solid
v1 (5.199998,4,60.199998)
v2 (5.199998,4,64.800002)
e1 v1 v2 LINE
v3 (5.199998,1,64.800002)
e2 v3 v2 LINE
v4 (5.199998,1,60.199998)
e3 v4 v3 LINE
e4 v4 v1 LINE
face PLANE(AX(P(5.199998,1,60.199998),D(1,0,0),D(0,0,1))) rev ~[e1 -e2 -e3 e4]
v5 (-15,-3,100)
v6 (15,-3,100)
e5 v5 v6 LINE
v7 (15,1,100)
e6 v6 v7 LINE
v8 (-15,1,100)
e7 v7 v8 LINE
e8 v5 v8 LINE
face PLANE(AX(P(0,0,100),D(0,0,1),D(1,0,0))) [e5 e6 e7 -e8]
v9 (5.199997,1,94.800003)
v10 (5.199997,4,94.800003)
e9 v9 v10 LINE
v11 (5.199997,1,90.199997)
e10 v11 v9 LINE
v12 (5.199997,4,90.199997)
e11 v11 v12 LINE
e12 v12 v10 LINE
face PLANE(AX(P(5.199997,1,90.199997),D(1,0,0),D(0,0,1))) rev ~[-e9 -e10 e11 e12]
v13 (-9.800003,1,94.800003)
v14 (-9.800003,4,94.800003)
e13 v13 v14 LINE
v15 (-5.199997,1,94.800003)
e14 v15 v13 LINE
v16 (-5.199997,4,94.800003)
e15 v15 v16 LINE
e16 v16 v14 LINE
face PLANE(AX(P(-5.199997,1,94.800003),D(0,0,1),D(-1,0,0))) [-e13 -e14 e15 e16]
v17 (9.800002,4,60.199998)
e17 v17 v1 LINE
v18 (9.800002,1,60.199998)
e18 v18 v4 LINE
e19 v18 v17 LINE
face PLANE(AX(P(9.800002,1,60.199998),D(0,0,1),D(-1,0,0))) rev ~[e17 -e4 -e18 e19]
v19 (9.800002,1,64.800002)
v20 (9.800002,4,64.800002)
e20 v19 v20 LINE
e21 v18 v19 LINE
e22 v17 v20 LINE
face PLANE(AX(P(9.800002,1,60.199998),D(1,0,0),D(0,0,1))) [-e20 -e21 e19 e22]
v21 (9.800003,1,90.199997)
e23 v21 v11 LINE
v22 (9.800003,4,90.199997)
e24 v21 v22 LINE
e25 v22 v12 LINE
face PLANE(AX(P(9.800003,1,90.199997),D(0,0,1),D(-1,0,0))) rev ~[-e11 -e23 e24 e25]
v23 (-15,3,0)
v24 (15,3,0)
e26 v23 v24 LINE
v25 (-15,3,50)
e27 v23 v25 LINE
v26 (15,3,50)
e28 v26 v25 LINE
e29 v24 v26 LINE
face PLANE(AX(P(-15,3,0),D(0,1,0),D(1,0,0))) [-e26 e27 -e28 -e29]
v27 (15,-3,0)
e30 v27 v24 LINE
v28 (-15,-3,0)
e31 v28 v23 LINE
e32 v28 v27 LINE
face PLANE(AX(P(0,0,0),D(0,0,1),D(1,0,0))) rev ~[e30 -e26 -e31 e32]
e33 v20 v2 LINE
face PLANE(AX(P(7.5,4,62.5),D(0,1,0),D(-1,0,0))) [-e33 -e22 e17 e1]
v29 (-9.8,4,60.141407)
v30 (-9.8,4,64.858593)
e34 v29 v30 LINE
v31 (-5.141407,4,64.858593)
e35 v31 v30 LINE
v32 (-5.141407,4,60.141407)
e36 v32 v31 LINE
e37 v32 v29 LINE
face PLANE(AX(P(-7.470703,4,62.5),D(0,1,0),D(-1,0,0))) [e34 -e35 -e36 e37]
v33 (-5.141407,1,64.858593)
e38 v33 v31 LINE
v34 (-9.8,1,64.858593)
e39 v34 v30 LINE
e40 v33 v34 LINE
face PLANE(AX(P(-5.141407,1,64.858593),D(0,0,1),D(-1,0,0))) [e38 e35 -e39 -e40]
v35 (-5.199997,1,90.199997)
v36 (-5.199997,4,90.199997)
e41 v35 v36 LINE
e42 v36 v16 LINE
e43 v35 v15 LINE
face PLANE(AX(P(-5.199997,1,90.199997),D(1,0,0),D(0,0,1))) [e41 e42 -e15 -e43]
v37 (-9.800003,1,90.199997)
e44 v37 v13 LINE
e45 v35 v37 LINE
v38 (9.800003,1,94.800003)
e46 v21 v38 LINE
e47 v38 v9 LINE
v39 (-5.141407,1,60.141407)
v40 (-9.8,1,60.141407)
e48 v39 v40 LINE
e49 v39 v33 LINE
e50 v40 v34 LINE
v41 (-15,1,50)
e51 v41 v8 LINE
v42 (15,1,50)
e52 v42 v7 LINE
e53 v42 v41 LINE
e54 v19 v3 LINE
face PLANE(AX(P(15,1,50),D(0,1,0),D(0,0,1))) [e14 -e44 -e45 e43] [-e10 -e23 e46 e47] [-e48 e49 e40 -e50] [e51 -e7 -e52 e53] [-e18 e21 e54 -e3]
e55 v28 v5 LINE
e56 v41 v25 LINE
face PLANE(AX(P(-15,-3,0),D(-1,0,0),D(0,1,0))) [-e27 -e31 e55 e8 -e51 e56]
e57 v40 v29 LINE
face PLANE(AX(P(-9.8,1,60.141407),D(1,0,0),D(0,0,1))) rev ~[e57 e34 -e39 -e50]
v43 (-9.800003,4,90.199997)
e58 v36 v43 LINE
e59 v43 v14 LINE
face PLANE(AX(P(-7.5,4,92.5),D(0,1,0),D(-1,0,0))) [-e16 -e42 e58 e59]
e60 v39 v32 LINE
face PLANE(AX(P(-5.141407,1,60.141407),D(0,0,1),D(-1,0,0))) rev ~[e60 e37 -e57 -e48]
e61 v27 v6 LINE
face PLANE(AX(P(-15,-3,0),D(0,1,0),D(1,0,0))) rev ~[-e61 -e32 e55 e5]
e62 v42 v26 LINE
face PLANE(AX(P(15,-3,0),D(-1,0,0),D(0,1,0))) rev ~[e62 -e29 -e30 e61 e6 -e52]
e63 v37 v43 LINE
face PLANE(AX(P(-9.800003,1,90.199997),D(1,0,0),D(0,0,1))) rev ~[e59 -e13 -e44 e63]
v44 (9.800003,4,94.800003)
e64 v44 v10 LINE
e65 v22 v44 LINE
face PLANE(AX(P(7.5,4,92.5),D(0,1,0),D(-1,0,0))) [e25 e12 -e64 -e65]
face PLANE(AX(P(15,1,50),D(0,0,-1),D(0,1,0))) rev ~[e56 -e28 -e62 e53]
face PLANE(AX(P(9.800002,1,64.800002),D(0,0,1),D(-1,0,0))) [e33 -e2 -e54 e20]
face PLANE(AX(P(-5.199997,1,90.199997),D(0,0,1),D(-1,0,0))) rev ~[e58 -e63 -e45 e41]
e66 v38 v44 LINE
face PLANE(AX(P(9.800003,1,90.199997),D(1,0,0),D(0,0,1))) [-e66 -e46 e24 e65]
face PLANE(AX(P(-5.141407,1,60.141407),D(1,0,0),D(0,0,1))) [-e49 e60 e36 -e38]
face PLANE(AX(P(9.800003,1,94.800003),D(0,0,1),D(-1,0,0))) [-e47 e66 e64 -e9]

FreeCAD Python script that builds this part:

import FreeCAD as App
import Part
import Sketcher

V = App.Vector
Q = App.Units.Quantity

doc = App.newDocument("Part")
body = doc.addObject("PartDesign::Body", "Body")

sketch1 = doc.addObject("Sketcher::SketchObject", "Sketch")
body.addObject(sketch1)
sketch1.AttachmentSupport = (doc.XY_Plane, [""])
sketch1.MapMode = "FlatFace"
sketch1.addGeometry(Part.LineSegment(V(-15, 3, 0), V(-15, -3, 0)), False)
sketch1.addGeometry(Part.LineSegment(V(-15, -3, 0), V(15, -3, 0)), False)
sketch1.addGeometry(Part.LineSegment(V(15, -3, 0), V(15, 3, 0)), False)
sketch1.addGeometry(Part.LineSegment(V(15, 3, 0), V(-15, 3, 0)), False)
sketch1.addConstraint(Sketcher.Constraint("Coincident", 0, 2, 1, 1))
sketch1.addConstraint(Sketcher.Constraint("Coincident", 1, 2, 2, 1))
sketch1.addConstraint(Sketcher.Constraint("Coincident", 2, 2, 3, 1))
sketch1.addConstraint(Sketcher.Constraint("Coincident", 3, 2, 0, 1))
sketch1.addConstraint(Sketcher.Constraint("Vertical", 0))
sketch1.addConstraint(Sketcher.Constraint("Horizontal", 1))
sketch1.addConstraint(Sketcher.Constraint("Vertical", 2))
sketch1.addConstraint(Sketcher.Constraint("Horizontal", 3))
sketch1.addConstraint(Sketcher.Constraint("Symmetric", 0, 2, 2, 2, -1, 1))
sketch1.addConstraint(Sketcher.Constraint("DistanceX", 1, 1, 1, 2, Q("30 mm")))
sketch1.addConstraint(Sketcher.Constraint("DistanceY", 0, 2, 0, 1, Q("6 mm")))
pad1 = doc.addObject("PartDesign::Pad", "Pad")
body.addObject(pad1)
pad1.Profile = sketch1
pad1.Length = 100

sketch2 = doc.addObject("Sketcher::SketchObject", "Sketch001")
body.addObject(sketch2)
sketch2.AttachmentSupport = (doc.YZ_Plane, [""])
sketch2.MapMode = "FlatFace"
sketch2.AttachmentOffset = App.Placement(V(0, 0, 15), App.Rotation())
sketch2.addGeometry(Part.LineSegment(V(1, 100, 0), V(1, 50, 0)), False)
sketch2.addGeometry(Part.LineSegment(V(1, 50, 0), V(3, 50, 0)), False)
sketch2.addGeometry(Part.LineSegment(V(3, 50, 0), V(3, 100, 0)), False)
sketch2.addGeometry(Part.LineSegment(V(3, 100, 0), V(1, 100, 0)), False)
sketch2.addConstraint(Sketcher.Constraint("Coincident", 0, 2, 1, 1))
sketch2.addConstraint(Sketcher.Constraint("Coincident", 1, 2, 2, 1))
sketch2.addConstraint(Sketcher.Constraint("Coincident", 2, 2, 3, 1))
sketch2.addConstraint(Sketcher.Constraint("Coincident", 3, 2, 0, 1))
sketch2.addConstraint(Sketcher.Constraint("Vertical", 0))
sketch2.addConstraint(Sketcher.Constraint("Horizontal", 1))
sketch2.addConstraint(Sketcher.Constraint("Vertical", 2))
sketch2.addConstraint(Sketcher.Constraint("Horizontal", 3))
sketch2.addConstraint(Sketcher.Constraint("DistanceX", 1, 1, 1, 2, Q("2 mm")))
sketch2.addConstraint(Sketcher.Constraint("DistanceY", 0, 2, 0, 1, Q("50 mm")))
sketch2.addConstraint(Sketcher.Constraint("DistanceX", -1, 1, 0, 2, Q("1 mm")))
sketch2.addConstraint(Sketcher.Constraint("DistanceY", -1, 1, 0, 2, Q("50 mm")))
pocket1 = doc.addObject("PartDesign::Pocket", "Pocket")
body.addObject(pocket1)
pocket1.Profile = sketch2
pocket1.Type = "ThroughAll"

sketch3 = doc.addObject("Sketcher::SketchObject", "Sketch002")
body.addObject(sketch3)
sketch3.AttachmentSupport = (doc.XZ_Plane, [""])
sketch3.MapMode = "FlatFace"
sketch3.AttachmentOffset = App.Placement(V(0, 0, -1), App.Rotation())
sketch3.addGeometry(Part.LineSegment(V(9.8, 94.8, 0), V(9.8, 90.2, 0)), False)
sketch3.addGeometry(Part.LineSegment(V(9.8, 90.2, 0), V(5.2, 90.2, 0)), False)
sketch3.addGeometry(Part.LineSegment(V(5.2, 90.2, 0), V(5.2, 94.8, 0)), False)
sketch3.addGeometry(Part.LineSegment(V(5.2, 94.8, 0), V(9.8, 94.8, 0)), False)
sketch3.addGeometry(Part.LineSegment(V(-5.2, 94.8, 0), V(-5.2, 90.2, 0)), False)
sketch3.addGeometry(Part.LineSegment(V(-5.2, 90.2, 0), V(-9.8, 90.2, 0)), False)
sketch3.addGeometry(Part.LineSegment(V(-9.8, 90.2, 0), V(-9.8, 94.8, 0)), False)
sketch3.addGeometry(Part.LineSegment(V(-9.8, 94.8, 0), V(-5.2, 94.8, 0)), False)
sketch3.addGeometry(Part.LineSegment(V(9.8, 64.8, 0), V(9.8, 60.2, 0)), False)
sketch3.addGeometry(Part.LineSegment(V(9.8, 60.2, 0), V(5.2, 60.2, 0)), False)
sketch3.addGeometry(Part.LineSegment(V(5.2, 60.2, 0), V(5.2, 64.8, 0)), False)
sketch3.addGeometry(Part.LineSegment(V(5.2, 64.8, 0), V(9.8, 64.8, 0)), False)
sketch3.addGeometry(Part.LineSegment(V(-5.1, 64.9, 0), V(-5.1, 60.1, 0)), False)
sketch3.addGeometry(Part.LineSegment(V(-5.1, 60.1, 0), V(-9.8, 60.1, 0)), False)
sketch3.addGeometry(Part.LineSegment(V(-9.8, 60.1, 0), V(-9.8, 64.9, 0)), False)
sketch3.addGeometry(Part.LineSegment(V(-9.8, 64.9, 0), V(-5.1, 64.9, 0)), False)
sketch3.addConstraint(Sketcher.Constraint("Coincident", 0, 2, 1, 1))
sketch3.addConstraint(Sketcher.Constraint("Coincident", 1, 2, 2, 1))
sketch3.addConstraint(Sketcher.Constraint("Coincident", 2, 2, 3, 1))
sketch3.addConstraint(Sketcher.Constraint("Coincident", 3, 2, 0, 1))
sketch3.addConstraint(Sketcher.Constraint("Coincident", 4, 2, 5, 1))
sketch3.addConstraint(Sketcher.Constraint("Coincident", 5, 2, 6, 1))
sketch3.addConstraint(Sketcher.Constraint("Coincident", 6, 2, 7, 1))
sketch3.addConstraint(Sketcher.Constraint("Coincident", 7, 2, 4, 1))
sketch3.addConstraint(Sketcher.Constraint("Coincident", 8, 2, 9, 1))
sketch3.addConstraint(Sketcher.Constraint("Coincident", 9, 2, 10, 1))
sketch3.addConstraint(Sketcher.Constraint("Coincident", 10, 2, 11, 1))
sketch3.addConstraint(Sketcher.Constraint("Coincident", 11, 2, 8, 1))
sketch3.addConstraint(Sketcher.Constraint("Coincident", 12, 2, 13, 1))
sketch3.addConstraint(Sketcher.Constraint("Coincident", 13, 2, 14, 1))
sketch3.addConstraint(Sketcher.Constraint("Coincident", 14, 2, 15, 1))
sketch3.addConstraint(Sketcher.Constraint("Coincident", 15, 2, 12, 1))
sketch3.addConstraint(Sketcher.Constraint("Vertical", 0))
sketch3.addConstraint(Sketcher.Constraint("Horizontal", 1))
sketch3.addConstraint(Sketcher.Constraint("Vertical", 2))
sketch3.addConstraint(Sketcher.Constraint("Horizontal", 3))
sketch3.addConstraint(Sketcher.Constraint("Vertical", 4))
sketch3.addConstraint(Sketcher.Constraint("Horizontal", 5))
sketch3.addConstraint(Sketcher.Constraint("Vertical", 6))
sketch3.addConstraint(Sketcher.Constraint("Horizontal", 7))
sketch3.addConstraint(Sketcher.Constraint("Vertical", 8))
sketch3.addConstraint(Sketcher.Constraint("Horizontal", 9))
sketch3.addConstraint(Sketcher.Constraint("Vertical", 10))
sketch3.addConstraint(Sketcher.Constraint("Horizontal", 11))
sketch3.addConstraint(Sketcher.Constraint("Vertical", 12))
sketch3.addConstraint(Sketcher.Constraint("Horizontal", 13))
sketch3.addConstraint(Sketcher.Constraint("Vertical", 14))
sketch3.addConstraint(Sketcher.Constraint("Horizontal", 15))
sketch3.addConstraint(Sketcher.Constraint("Symmetric", 1, 2, 4, 2, -2))
sketch3.addConstraint(Sketcher.Constraint("Symmetric", 3, 2, 6, 2, -2))
sketch3.addConstraint(Sketcher.Constraint("Vertical", 3, 2, 8, 2))
sketch3.addConstraint(Sketcher.Constraint("Vertical", 2, 2, 9, 2))
sketch3.addConstraint(Sketcher.Constraint("Equal", 7, 0))
sketch3.addConstraint(Sketcher.Constraint("Equal", 11, 8))
sketch3.addConstraint(Sketcher.Constraint("DistanceX", 4, 2, 0, 2, Q("15 mm")))
sketch3.addConstraint(Sketcher.Constraint("DistanceY", 8, 2, 0, 2, Q("29.999999 mm")))
sketch3.addConstraint(Sketcher.Constraint("DistanceX", -1, 1, 8, 2, Q("9.800002 mm")))
sketch3.addConstraint(Sketcher.Constraint("DistanceX", 13, 2, -1, 1, Q("9.8 mm")))
sketch3.addConstraint(Sketcher.Constraint("DistanceX", 13, 2, 13, 1, Q("4.658593 mm")))
sketch3.addConstraint(Sketcher.Constraint("DistanceY", 12, 2, 12, 1, Q("4.717186 mm")))
sketch3.addConstraint(Sketcher.Constraint("DistanceY", 12, 2, 9, 2, Q("0.058591 mm")))
sketch3.addConstraint(Sketcher.Constraint("DistanceY", -1, 1, 0, 2, Q("90.199997 mm")))
pad2 = doc.addObject("PartDesign::Pad", "Pad001")
body.addObject(pad2)
pad2.Profile = sketch3
pad2.Length = 3
pad2.Reversed = True

doc.recompute()
